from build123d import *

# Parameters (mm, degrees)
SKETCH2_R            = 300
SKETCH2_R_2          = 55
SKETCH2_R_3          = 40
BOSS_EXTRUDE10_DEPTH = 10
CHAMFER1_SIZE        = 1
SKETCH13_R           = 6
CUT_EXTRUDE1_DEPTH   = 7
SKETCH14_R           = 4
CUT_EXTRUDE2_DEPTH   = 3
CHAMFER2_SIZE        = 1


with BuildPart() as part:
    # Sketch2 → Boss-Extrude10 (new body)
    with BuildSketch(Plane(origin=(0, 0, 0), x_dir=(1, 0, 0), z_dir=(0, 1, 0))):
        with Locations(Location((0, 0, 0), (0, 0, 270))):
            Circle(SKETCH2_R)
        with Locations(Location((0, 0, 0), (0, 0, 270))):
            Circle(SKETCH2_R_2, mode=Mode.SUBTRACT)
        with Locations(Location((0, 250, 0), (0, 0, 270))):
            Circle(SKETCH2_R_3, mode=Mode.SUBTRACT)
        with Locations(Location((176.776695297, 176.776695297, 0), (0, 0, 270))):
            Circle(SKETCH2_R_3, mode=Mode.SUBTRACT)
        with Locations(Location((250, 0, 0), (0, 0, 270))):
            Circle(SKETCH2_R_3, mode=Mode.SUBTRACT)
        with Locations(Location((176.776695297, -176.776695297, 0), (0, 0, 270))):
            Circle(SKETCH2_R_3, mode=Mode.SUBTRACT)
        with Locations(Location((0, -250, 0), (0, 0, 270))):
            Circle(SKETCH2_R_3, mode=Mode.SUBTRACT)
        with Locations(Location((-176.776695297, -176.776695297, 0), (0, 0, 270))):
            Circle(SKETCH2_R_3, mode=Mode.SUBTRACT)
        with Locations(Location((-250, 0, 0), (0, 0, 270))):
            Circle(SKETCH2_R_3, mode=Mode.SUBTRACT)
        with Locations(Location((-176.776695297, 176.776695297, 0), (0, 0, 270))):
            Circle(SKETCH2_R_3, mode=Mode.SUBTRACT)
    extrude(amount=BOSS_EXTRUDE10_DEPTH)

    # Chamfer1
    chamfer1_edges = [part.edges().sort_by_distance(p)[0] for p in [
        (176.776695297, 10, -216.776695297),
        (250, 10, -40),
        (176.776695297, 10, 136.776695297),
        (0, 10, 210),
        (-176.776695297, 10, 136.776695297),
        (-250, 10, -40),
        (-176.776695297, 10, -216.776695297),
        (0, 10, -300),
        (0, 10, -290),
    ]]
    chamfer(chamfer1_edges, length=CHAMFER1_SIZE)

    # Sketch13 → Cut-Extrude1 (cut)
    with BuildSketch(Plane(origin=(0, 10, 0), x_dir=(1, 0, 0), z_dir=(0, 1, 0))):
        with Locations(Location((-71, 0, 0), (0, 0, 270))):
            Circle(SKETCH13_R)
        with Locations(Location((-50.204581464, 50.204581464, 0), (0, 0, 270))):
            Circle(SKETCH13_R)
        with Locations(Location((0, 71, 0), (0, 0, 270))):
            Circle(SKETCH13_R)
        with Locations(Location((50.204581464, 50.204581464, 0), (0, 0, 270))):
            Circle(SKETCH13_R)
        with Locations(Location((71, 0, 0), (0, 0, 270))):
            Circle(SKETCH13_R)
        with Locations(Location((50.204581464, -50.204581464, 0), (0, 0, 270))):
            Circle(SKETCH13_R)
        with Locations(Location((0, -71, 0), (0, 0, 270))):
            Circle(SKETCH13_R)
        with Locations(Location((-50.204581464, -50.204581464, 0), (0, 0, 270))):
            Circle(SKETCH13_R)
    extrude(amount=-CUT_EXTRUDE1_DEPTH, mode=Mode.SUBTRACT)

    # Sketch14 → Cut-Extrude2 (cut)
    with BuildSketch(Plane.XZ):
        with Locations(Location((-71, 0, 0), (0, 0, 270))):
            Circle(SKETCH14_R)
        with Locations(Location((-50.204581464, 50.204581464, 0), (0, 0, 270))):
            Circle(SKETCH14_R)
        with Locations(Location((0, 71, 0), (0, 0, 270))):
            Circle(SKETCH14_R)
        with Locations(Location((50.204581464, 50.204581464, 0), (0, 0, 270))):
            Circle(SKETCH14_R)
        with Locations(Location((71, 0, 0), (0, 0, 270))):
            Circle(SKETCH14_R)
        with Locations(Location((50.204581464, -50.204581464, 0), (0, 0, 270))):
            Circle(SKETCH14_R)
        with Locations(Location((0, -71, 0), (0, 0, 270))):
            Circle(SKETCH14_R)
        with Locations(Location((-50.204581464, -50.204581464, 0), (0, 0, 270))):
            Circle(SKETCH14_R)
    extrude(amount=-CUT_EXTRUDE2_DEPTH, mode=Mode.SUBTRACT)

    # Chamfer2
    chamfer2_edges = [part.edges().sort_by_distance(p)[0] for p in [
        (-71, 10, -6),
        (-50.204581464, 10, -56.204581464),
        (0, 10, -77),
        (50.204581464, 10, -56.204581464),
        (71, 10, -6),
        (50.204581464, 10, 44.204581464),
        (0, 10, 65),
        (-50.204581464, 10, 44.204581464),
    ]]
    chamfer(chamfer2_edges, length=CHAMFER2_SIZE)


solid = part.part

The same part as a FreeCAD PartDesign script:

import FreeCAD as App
import Part
import Sketcher

V = App.Vector


def edges_at(feature, points):
    """Names of the edges that pass closest to the given points."""
    edges = feature.Shape.Edges
    near = lambda p: min(range(len(edges)), key=lambda i: edges[i].distToShape(Part.Vertex(*p))[0])
    return sorted({f"Edge{near(p) + 1}" for p in points})

doc = App.newDocument("Part")
body = doc.addObject("PartDesign::Body", "Body")

# Sketch on XZ plane
sketch1 = body.newObject("Sketcher::SketchObject", "Sketch")
sketch1.AttachmentSupport = (doc.getObject("XZ_Plane"), [""])
sketch1.MapMode = "FlatFace"
sketch1.addGeometry(Part.Circle(V(0, 0, 0), V(0, 0, 1), 300), False)
sketch1.addGeometry(Part.Circle(V(-177, -177, 0), V(0, 0, 1), 40), False)
sketch1.addGeometry(Part.Circle(V(0, -250, 0), V(0, 0, 1), 40), False)
sketch1.addGeometry(Part.Circle(V(-250, 0, 0), V(0, 0, 1), 40), False)
sketch1.addGeometry(Part.Circle(V(-177, 177, 0), V(0, 0, 1), 40), False)
sketch1.addGeometry(Part.Circle(V(177, -177, 0), V(0, 0, 1), 40), False)
sketch1.addGeometry(Part.Circle(V(0, 0, 0), V(0, 0, 1), 55), False)
sketch1.addGeometry(Part.Circle(V(0, 250, 0), V(0, 0, 1), 40), False)
sketch1.addGeometry(Part.Circle(V(250, 0, 0), V(0, 0, 1), 40), False)
sketch1.addGeometry(Part.Circle(V(177, 177, 0), V(0, 0, 1), 40), False)
sketch1.addConstraint(Sketcher.Constraint("Coincident", 0, 3, -1, 1))
sketch1.addConstraint(Sketcher.Constraint("Coincident", 6, 3, -1, 1))
sketch1.addConstraint(Sketcher.Constraint("Equal", 1, 2))
sketch1.addConstraint(Sketcher.Constraint("Equal", 2, 3))
sketch1.addConstraint(Sketcher.Constraint("Equal", 3, 4))
sketch1.addConstraint(Sketcher.Constraint("Equal", 4, 5))
sketch1.addConstraint(Sketcher.Constraint("Equal", 5, 7))
sketch1.addConstraint(Sketcher.Constraint("Equal", 7, 8))
sketch1.addConstraint(Sketcher.Constraint("Equal", 8, 9))
sketch1.addConstraint(Sketcher.Constraint("Symmetric", 4, 3, 5, 3, -1, 1))
sketch1.addConstraint(Sketcher.Constraint("Symmetric", 2, 3, 7, 3, -1, 1))
sketch1.addConstraint(Sketcher.Constraint("Symmetric", 3, 3, 8, 3, -1, 1))
sketch1.addConstraint(Sketcher.Constraint("Symmetric", 1, 3, 9, 3, -1, 1))
sketch1.addConstraint(Sketcher.Constraint("Symmetric", 1, 3, 5, 3, -2))
sketch1.addConstraint(Sketcher.Constraint("PointOnObject", 2, 3, -2))
sketch1.addConstraint(Sketcher.Constraint("PointOnObject", 3, 3, -1))
sketch1.addConstraint(Sketcher.Constraint("Diameter", 0, 600.0))
sketch1.addConstraint(Sketcher.Constraint("Diameter", 1, 80.0))
sketch1.addConstraint(Sketcher.Constraint("Diameter", 6, 110.0))
sketch1.addConstraint(Sketcher.Constraint("DistanceY", 2, 3, -1, 1, 250.0))
sketch1.addConstraint(Sketcher.Constraint("DistanceX", 3, 3, -1, 1, 250.0))
sketch1.addConstraint(Sketcher.Constraint("DistanceY", 1, 3, 4, 3, 353.553391))
sketch1.addConstraint(Sketcher.Constraint("DistanceX", 1, 3, 5, 3, 353.553391))
pad1 = body.newObject("PartDesign::Pad", "Pad")
pad1.Profile = sketch1
pad1.Length = 10
pad1.Reversed = True
doc.recompute()

chamfer = body.newObject("PartDesign::Chamfer", "Chamfer")
chamfer.Base = (pad1, edges_at(pad1, [
    (176.777, 10, -216.777),
    (250, 10, -40),
    (176.777, 10, 136.777),
    (0, 10, 210),
    (-176.777, 10, 136.777),
    (-250, 10, -40),
    (-176.777, 10, -216.777),
    (0, 10, -300),
    (0, 10, -290),
]))
chamfer.Size = 1

# Sketch on XZ plane
sketch2 = body.newObject("Sketcher::SketchObject", "Sketch001")
sketch2.AttachmentSupport = (doc.getObject("XZ_Plane"), [""])
sketch2.MapMode = "FlatFace"
sketch2.AttachmentOffset = App.Placement(V(0, 0, -10), App.Rotation())
sketch2.addGeometry(Part.Circle(V(-71, 0, 0), V(0, 0, 1), 6), False)
sketch2.addGeometry(Part.Circle(V(-50, -50, 0), V(0, 0, 1), 6), False)
sketch2.addGeometry(Part.Circle(V(0, -71, 0), V(0, 0, 1), 6), False)
sketch2.addGeometry(Part.Circle(V(50, -50, 0), V(0, 0, 1), 6), False)
sketch2.addGeometry(Part.Circle(V(71, 0, 0), V(0, 0, 1), 6), False)
sketch2.addGeometry(Part.Circle(V(50, 50, 0), V(0, 0, 1), 6), False)
sketch2.addGeometry(Part.Circle(V(0, 71, 0), V(0, 0, 1), 6), False)
sketch2.addGeometry(Part.Circle(V(-50, 50, 0), V(0, 0, 1), 6), False)
sketch2.addConstraint(Sketcher.Constraint("Equal", 0, 1))
sketch2.addConstraint(Sketcher.Constraint("Equal", 1, 2))
sketch2.addConstraint(Sketcher.Constraint("Equal", 2, 3))
sketch2.addConstraint(Sketcher.Constraint("Equal", 3, 4))
sketch2.addConstraint(Sketcher.Constraint("Equal", 4, 5))
sketch2.addConstraint(Sketcher.Constraint("Equal", 5, 6))
sketch2.addConstraint(Sketcher.Constraint("Equal", 6, 7))
sketch2.addConstraint(Sketcher.Constraint("Symmetric", 0, 3, 4, 3, -1, 1))
sketch2.addConstraint(Sketcher.Constraint("Symmetric", 1, 3, 5, 3, -1, 1))
sketch2.addConstraint(Sketcher.Constraint("Symmetric", 2, 3, 6, 3, -1, 1))
sketch2.addConstraint(Sketcher.Constraint("Symmetric", 3, 3, 7, 3, -1, 1))
sketch2.addConstraint(Sketcher.Constraint("Symmetric", 1, 3, 3, 3, -2))
sketch2.addConstraint(Sketcher.Constraint("PointOnObject", 0, 3, -1))
sketch2.addConstraint(Sketcher.Constraint("PointOnObject", 2, 3, -2))
sketch2.addConstraint(Sketcher.Constraint("Diameter", 0, 12.0))
sketch2.addConstraint(Sketcher.Constraint("DistanceX", 0, 3, -1, 1, 71.0))
sketch2.addConstraint(Sketcher.Constraint("DistanceY", 2, 3, -1, 1, 71.0))
sketch2.addConstraint(Sketcher.Constraint("DistanceX", 1, 3, -1, 1, 50.204581))
sketch2.addConstraint(Sketcher.Constraint("DistanceY", 1, 3, -1, 1, 50.204581))
pocket1 = body.newObject("PartDesign::Pocket", "Pocket")
pocket1.Profile = sketch2
pocket1.Length = 7
pocket1.Reversed = True

# Sketch on XZ plane
sketch3 = body.newObject("Sketcher::SketchObject", "Sketch002")
sketch3.AttachmentSupport = (doc.getObject("XZ_Plane"), [""])
sketch3.MapMode = "FlatFace"
sketch3.addGeometry(Part.Circle(V(-71, 0, 0), V(0, 0, 1), 4), False)
sketch3.addGeometry(Part.Circle(V(-50.2, 50.2, 0), V(0, 0, 1), 4), False)
sketch3.addGeometry(Part.Circle(V(0, 71, 0), V(0, 0, 1), 4), False)
sketch3.addGeometry(Part.Circle(V(50.2, 50.2, 0), V(0, 0, 1), 4), False)
sketch3.addGeometry(Part.Circle(V(71, 0, 0), V(0, 0, 1), 4), False)
sketch3.addGeometry(Part.Circle(V(50.2, -50.2, 0), V(0, 0, 1), 4), False)
sketch3.addGeometry(Part.Circle(V(0, -71, 0), V(0, 0, 1), 4), False)
sketch3.addGeometry(Part.Circle(V(-50.2, -50.2, 0), V(0, 0, 1), 4), False)
sketch3.addConstraint(Sketcher.Constraint("Equal", 0, 1))
sketch3.addConstraint(Sketcher.Constraint("Equal", 1, 2))
sketch3.addConstraint(Sketcher.Constraint("Equal", 2, 3))
sketch3.addConstraint(Sketcher.Constraint("Equal", 3, 4))
sketch3.addConstraint(Sketcher.Constraint("Equal", 4, 5))
sketch3.addConstraint(Sketcher.Constraint("Equal", 5, 6))
sketch3.addConstraint(Sketcher.Constraint("Equal", 6, 7))
sketch3.addConstraint(Sketcher.Constraint("Symmetric", 0, 3, 4, 3, -1, 1))
sketch3.addConstraint(Sketcher.Constraint("Symmetric", 1, 3, 5, 3, -1, 1))
sketch3.addConstraint(Sketcher.Constraint("Symmetric", 2, 3, 6, 3, -1, 1))
sketch3.addConstraint(Sketcher.Constraint("Symmetric", 3, 3, 7, 3, -1, 1))
sketch3.addConstraint(Sketcher.Constraint("Symmetric", 1, 3, 3, 3, -2))
sketch3.addConstraint(Sketcher.Constraint("PointOnObject", 0, 3, -1))
sketch3.addConstraint(Sketcher.Constraint("PointOnObject", 2, 3, -2))
sketch3.addConstraint(Sketcher.Constraint("Diameter", 0, 8.0))
sketch3.addConstraint(Sketcher.Constraint("DistanceX", 0, 3, -1, 1, 71.0))
sketch3.addConstraint(Sketcher.Constraint("DistanceY", -1, 1, 2, 3, 71.0))
sketch3.addConstraint(Sketcher.Constraint("DistanceX", 1, 3, -1, 1, 50.204581))
sketch3.addConstraint(Sketcher.Constraint("DistanceY", -1, 1, 1, 3, 50.204581))
pocket2 = body.newObject("PartDesign::Pocket", "Pocket001")
pocket2.Profile = sketch3
pocket2.Length = 3
doc.recompute()

chamfer2 = body.newObject("PartDesign::Chamfer", "Chamfer001")
chamfer2.Base = (pocket2, edges_at(pocket2, [
    (-71, 10, -6),
    (-50.205, 10, -56.205),
    (0, 10, -77),
    (50.205, 10, -56.205),
    (71, 10, -6),
    (50.205, 10, 44.205),
    (0, 10, 65),
    (-50.205, 10, 44.205),
]))
chamfer2.Size = 1

doc.recompute()
